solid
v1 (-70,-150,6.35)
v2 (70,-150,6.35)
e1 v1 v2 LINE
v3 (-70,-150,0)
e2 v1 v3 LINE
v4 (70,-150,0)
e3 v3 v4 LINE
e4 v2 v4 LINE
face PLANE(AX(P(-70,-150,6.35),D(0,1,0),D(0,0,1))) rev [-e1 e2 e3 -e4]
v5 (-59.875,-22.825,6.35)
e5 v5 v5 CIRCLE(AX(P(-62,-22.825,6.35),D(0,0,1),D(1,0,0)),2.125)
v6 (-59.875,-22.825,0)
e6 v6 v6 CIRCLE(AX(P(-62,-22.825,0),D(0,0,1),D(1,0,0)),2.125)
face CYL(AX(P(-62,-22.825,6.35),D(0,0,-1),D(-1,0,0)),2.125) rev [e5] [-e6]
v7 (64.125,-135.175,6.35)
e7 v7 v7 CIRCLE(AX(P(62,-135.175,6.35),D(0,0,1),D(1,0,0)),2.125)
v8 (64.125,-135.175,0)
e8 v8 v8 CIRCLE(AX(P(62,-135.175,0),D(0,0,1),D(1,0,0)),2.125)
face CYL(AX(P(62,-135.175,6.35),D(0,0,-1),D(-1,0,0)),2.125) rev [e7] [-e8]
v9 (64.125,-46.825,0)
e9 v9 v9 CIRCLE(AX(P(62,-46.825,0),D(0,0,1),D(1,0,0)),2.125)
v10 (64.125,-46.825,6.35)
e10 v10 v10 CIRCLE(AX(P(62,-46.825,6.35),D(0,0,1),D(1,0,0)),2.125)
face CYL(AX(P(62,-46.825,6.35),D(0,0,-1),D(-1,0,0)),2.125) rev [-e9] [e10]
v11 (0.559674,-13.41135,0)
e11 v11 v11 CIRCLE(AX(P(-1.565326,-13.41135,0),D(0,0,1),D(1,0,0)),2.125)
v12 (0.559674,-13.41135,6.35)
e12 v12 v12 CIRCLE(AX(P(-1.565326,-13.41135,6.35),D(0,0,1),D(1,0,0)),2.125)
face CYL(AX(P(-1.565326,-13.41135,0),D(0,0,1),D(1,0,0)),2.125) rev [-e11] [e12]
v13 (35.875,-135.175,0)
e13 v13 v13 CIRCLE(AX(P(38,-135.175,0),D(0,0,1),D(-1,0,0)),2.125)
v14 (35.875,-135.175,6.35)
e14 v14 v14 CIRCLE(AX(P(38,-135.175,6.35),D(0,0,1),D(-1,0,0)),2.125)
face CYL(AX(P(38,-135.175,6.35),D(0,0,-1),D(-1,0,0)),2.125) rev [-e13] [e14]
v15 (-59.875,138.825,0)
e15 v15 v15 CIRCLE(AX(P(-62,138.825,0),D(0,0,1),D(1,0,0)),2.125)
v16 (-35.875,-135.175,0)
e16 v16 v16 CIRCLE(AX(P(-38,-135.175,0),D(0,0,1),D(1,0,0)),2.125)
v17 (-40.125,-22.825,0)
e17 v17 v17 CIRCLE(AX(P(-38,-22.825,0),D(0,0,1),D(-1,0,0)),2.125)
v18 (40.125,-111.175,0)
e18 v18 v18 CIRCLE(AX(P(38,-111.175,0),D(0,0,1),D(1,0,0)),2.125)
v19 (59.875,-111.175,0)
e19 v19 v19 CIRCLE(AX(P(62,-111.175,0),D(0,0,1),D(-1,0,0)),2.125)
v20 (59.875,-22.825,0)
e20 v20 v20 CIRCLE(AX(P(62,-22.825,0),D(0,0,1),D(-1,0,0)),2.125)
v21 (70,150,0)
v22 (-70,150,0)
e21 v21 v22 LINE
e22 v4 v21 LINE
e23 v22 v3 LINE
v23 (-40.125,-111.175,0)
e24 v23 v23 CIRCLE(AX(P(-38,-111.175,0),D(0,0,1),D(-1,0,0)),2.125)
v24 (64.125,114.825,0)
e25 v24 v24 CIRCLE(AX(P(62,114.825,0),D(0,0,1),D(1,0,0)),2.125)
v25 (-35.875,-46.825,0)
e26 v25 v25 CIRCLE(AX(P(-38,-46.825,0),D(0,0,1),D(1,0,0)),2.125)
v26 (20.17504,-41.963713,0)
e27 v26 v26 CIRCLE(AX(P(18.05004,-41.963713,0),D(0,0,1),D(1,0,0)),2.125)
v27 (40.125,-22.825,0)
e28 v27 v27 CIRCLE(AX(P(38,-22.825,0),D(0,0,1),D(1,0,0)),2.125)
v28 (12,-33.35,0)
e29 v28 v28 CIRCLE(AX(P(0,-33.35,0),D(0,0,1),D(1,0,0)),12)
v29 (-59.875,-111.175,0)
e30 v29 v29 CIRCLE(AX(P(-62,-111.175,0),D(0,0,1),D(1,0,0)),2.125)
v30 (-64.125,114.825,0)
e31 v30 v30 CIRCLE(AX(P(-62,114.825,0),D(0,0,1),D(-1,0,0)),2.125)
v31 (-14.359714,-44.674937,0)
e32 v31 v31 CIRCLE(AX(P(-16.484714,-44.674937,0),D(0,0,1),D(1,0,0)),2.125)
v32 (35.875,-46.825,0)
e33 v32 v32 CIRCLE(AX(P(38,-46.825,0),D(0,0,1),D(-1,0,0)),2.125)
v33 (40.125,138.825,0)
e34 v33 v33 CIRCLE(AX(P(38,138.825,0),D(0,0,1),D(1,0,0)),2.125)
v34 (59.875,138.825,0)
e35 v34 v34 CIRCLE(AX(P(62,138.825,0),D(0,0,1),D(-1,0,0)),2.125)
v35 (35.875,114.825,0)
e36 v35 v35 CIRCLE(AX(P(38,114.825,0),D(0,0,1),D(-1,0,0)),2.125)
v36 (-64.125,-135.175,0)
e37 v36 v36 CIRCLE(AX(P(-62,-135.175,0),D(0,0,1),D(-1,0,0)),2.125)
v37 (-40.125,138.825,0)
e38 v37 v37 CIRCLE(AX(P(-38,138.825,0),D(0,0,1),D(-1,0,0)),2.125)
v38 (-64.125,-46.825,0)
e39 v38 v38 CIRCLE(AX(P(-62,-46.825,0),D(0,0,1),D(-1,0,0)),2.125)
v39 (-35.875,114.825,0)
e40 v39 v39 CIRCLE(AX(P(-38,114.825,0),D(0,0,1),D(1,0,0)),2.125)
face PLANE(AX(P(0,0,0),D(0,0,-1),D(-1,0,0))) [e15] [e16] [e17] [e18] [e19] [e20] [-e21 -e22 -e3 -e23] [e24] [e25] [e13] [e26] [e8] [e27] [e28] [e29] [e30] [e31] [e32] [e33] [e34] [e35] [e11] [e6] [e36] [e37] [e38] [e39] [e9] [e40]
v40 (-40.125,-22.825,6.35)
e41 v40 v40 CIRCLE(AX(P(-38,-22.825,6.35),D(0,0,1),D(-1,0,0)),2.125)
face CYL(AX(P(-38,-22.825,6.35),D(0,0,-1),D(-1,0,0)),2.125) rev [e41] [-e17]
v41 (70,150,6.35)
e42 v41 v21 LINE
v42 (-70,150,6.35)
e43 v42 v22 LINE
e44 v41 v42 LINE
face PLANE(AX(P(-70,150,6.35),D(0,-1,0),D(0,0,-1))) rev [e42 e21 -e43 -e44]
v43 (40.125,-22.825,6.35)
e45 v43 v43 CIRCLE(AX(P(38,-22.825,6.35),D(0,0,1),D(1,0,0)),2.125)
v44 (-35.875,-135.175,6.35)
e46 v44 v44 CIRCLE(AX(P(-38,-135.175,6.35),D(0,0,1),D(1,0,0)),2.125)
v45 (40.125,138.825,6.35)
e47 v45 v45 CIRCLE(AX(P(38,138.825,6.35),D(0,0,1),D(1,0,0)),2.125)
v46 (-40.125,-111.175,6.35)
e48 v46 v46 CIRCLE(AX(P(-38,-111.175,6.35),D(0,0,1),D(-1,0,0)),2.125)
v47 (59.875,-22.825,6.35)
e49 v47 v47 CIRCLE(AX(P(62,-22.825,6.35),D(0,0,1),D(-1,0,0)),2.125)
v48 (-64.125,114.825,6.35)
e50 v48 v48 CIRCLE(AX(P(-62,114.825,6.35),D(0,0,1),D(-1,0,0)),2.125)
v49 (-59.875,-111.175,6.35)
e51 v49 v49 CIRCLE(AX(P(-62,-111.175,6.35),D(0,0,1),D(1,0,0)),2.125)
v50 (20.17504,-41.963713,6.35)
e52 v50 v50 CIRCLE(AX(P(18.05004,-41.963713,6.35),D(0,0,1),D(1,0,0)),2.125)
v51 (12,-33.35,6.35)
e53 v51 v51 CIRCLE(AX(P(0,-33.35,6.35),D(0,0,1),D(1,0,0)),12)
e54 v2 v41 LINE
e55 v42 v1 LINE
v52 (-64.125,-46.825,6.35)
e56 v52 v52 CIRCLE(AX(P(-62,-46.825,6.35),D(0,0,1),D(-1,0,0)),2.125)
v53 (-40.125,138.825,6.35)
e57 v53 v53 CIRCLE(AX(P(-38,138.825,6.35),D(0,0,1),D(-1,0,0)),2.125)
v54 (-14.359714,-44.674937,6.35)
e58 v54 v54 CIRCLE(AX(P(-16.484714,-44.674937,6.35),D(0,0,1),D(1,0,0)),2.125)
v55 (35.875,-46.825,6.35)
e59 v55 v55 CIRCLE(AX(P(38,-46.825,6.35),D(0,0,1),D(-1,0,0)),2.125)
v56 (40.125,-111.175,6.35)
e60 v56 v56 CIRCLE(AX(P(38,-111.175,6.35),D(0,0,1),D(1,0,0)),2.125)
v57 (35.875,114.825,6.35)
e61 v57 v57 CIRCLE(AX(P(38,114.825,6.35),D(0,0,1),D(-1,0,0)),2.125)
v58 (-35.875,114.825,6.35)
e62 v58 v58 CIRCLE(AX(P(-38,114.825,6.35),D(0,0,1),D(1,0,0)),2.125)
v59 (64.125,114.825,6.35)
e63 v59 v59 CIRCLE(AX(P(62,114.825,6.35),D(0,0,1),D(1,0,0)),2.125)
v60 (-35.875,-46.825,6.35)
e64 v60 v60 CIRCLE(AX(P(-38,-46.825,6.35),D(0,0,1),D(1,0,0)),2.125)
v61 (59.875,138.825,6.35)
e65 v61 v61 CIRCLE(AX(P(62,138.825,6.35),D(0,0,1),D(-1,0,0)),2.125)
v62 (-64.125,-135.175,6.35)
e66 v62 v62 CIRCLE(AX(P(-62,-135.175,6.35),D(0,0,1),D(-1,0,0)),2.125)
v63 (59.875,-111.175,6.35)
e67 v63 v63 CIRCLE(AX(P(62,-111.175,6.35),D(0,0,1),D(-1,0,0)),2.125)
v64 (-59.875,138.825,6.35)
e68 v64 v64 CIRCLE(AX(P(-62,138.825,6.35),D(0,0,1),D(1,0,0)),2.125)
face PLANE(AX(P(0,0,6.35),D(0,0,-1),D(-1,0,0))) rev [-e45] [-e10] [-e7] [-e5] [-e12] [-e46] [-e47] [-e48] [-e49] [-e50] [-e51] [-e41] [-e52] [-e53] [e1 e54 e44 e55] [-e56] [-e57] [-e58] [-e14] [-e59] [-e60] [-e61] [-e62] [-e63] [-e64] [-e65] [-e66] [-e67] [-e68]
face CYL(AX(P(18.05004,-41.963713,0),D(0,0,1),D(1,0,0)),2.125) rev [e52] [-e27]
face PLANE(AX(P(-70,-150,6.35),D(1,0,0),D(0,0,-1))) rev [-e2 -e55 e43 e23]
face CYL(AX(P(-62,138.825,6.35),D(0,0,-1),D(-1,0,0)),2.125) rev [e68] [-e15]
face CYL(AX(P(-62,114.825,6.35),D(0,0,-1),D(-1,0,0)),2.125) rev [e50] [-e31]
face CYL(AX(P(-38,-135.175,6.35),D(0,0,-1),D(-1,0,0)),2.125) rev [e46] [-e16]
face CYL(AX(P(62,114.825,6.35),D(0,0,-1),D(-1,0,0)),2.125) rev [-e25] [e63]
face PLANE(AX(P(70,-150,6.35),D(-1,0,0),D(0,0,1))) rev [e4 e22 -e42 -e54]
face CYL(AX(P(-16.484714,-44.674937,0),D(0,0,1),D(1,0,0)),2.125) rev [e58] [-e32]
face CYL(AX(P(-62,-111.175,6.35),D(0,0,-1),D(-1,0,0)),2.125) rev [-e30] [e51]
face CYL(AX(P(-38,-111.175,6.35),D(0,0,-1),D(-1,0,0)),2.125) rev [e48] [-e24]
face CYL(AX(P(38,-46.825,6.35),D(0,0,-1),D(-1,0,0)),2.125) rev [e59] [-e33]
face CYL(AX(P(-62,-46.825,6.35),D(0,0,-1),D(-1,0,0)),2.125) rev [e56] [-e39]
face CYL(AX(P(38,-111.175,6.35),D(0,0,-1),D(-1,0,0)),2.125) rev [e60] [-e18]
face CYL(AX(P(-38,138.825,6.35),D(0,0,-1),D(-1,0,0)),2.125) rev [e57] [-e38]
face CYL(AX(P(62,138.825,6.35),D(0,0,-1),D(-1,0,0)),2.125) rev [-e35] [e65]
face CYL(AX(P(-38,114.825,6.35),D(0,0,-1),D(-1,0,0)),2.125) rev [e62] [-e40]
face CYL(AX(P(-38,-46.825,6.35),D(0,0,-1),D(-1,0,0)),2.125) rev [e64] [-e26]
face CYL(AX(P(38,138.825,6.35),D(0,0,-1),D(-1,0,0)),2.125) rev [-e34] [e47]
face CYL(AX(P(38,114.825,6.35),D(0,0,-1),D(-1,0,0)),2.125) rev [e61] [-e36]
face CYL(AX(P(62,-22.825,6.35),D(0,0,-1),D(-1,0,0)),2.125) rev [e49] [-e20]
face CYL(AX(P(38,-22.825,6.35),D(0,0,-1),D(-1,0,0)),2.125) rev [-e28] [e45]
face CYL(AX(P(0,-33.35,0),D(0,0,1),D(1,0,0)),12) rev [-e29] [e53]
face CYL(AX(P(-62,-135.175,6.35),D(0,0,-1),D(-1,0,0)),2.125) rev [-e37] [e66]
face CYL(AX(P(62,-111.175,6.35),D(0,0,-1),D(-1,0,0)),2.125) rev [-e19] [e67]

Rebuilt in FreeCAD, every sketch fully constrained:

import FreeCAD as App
import Part
import Sketcher

V = App.Vector

doc = App.newDocument("Part")
params = doc.addObject("Spreadsheet::Sheet", "Params")
for row, (alias, value) in enumerate([
    ("sketch1_diameter", "4.25 mm"),
    ("sketch1_width", "140 mm"),
    ("sketch1_height", "300 mm"),
    ("pad1_length", "6.35 mm"),
    ("sketch2_diameter", "24 mm"),
    ("sketch2_diameter2", "4.25 mm"),
], start=1):
    params.set(f"A{row}", alias)
    params.set(f"B{row}", "=" + value)
    params.setAlias(f"B{row}", alias)

body = doc.addObject("PartDesign::Body", "Body")

# Sketch on XY plane
sketch1 = doc.addObject("Sketcher::SketchObject", "Sketch")
body.addObject(sketch1)
sketch1.AttachmentSupport = (doc.XY_Plane, [""])
sketch1.MapMode = "FlatFace"
sketch1.addGeometry([
    Part.LineSegment(V(-70, 150, 0), V(-70, -150, 0)),  # 0
    Part.LineSegment(V(-70, -150, 0), V(70, -150, 0)),  # 1
    Part.LineSegment(V(70, -150, 0), V(70, 150, 0)),  # 2
    Part.LineSegment(V(70, 150, 0), V(-70, 150, 0)),  # 3
    Part.Circle(V(-62, -135.175, 0), V(0, 0, 1), 2.125),  # 4
    Part.Circle(V(-62, -111.175, 0), V(0, 0, 1), 2.125),  # 5
    Part.Circle(V(-38, -135.175, 0), V(0, 0, 1), 2.125),  # 6
    Part.Circle(V(-38, -111.175, 0), V(0, 0, 1), 2.125),  # 7
    Part.Circle(V(-62, -46.825, 0), V(0, 0, 1), 2.125),  # 8
    Part.Circle(V(-38, -46.825, 0), V(0, 0, 1), 2.125),  # 9
    Part.Circle(V(-62, -22.825, 0), V(0, 0, 1), 2.125),  # 10
    Part.Circle(V(-38, -22.825, 0), V(0, 0, 1), 2.125),  # 11
    Part.Circle(V(38, -135.175, 0), V(0, 0, 1), 2.125),  # 12
    Part.Circle(V(38, -111.175, 0), V(0, 0, 1), 2.125),  # 13
    Part.Circle(V(62, -135.175, 0), V(0, 0, 1), 2.125),  # 14
    Part.Circle(V(62, -111.175, 0), V(0, 0, 1), 2.125),  # 15
    Part.Circle(V(38, -46.825, 0), V(0, 0, 1), 2.125),  # 16
    Part.Circle(V(62, -46.825, 0), V(0, 0, 1), 2.125),  # 17
    Part.Circle(V(38, -22.825, 0), V(0, 0, 1), 2.125),  # 18
    Part.Circle(V(62, -22.825, 0), V(0, 0, 1), 2.125),  # 19
    Part.Circle(V(-62, 114.825, 0), V(0, 0, 1), 2.125),  # 20
    Part.Circle(V(-62, 138.825, 0), V(0, 0, 1), 2.125),  # 21
    Part.Circle(V(-38, 114.825, 0), V(0, 0, 1), 2.125),  # 22
    Part.Circle(V(-38, 138.825, 0), V(0, 0, 1), 2.125),  # 23
    Part.Circle(V(38, 114.825, 0), V(0, 0, 1), 2.125),  # 24
    Part.Circle(V(38, 138.825, 0), V(0, 0, 1), 2.125),  # 25
    Part.Circle(V(62, 114.825, 0), V(0, 0, 1), 2.125),  # 26
    Part.Circle(V(62, 138.825, 0), V(0, 0, 1), 2.125),  # 27
], False)
sketch1.addConstraint([
    Sketcher.Constraint("Coincident", 0, 2, 1, 1),
    Sketcher.Constraint("Coincident", 1, 2, 2, 1),
    Sketcher.Constraint("Coincident", 2, 2, 3, 1),
    Sketcher.Constraint("Coincident", 3, 2, 0, 1),
    Sketcher.Constraint("Vertical", 0),
    Sketcher.Constraint("Horizontal", 1),
    Sketcher.Constraint("Vertical", 2),
    Sketcher.Constraint("Horizontal", 3),
    Sketcher.Constraint("Equal", 4, 5),
    Sketcher.Constraint("Equal", 5, 6),
    Sketcher.Constraint("Equal", 6, 7),
    Sketcher.Constraint("Equal", 7, 8),
    Sketcher.Constraint("Equal", 8, 9),
    Sketcher.Constraint("Equal", 9, 10),
    Sketcher.Constraint("Equal", 10, 11),
    Sketcher.Constraint("Equal", 11, 12),
    Sketcher.Constraint("Equal", 12, 13),
    Sketcher.Constraint("Equal", 13, 14),
    Sketcher.Constraint("Equal", 14, 15),
    Sketcher.Constraint("Equal", 15, 16),
    Sketcher.Constraint("Equal", 16, 17),
    Sketcher.Constraint("Equal", 17, 18),
    Sketcher.Constraint("Equal", 18, 19),
    Sketcher.Constraint("Equal", 19, 20),
    Sketcher.Constraint("Equal", 20, 21),
    Sketcher.Constraint("Equal", 21, 22),
    Sketcher.Constraint("Equal", 22, 23),
    Sketcher.Constraint("Equal", 23, 24),
    Sketcher.Constraint("Equal", 24, 25),
    Sketcher.Constraint("Equal", 25, 26),
    Sketcher.Constraint("Equal", 26, 27),
    Sketcher.Constraint("Symmetric", 0, 2, 2, 2, -1, 1),
    Sketcher.Constraint("Symmetric", 6, 3, 12, 3, -2),
    Sketcher.Constraint("Symmetric", 7, 3, 13, 3, -2),
    Sketcher.Constraint("Symmetric", 4, 3, 14, 3, -2),
    Sketcher.Constraint("Symmetric", 5, 3, 15, 3, -2),
    Sketcher.Constraint("Symmetric", 9, 3, 16, 3, -2),
    Sketcher.Constraint("Symmetric", 8, 3, 17, 3, -2),
    Sketcher.Constraint("Symmetric", 11, 3, 18, 3, -2),
    Sketcher.Constraint("Symmetric", 10, 3, 19, 3, -2),
    Sketcher.Constraint("Symmetric", 22, 3, 24, 3, -2),
    Sketcher.Constraint("Symmetric", 23, 3, 25, 3, -2),
    Sketcher.Constraint("Symmetric", 20, 3, 26, 3, -2),
    Sketcher.Constraint("Symmetric", 21, 3, 27, 3, -2),
    Sketcher.Constraint("Horizontal", 4, 3, 6, 3),
    Sketcher.Constraint("Horizontal", 5, 3, 7, 3),
    Sketcher.Constraint("Horizontal", 8, 3, 9, 3),
    Sketcher.Constraint("Horizontal", 10, 3, 11, 3),
    Sketcher.Constraint("Horizontal", 20, 3, 22, 3),
    Sketcher.Constraint("Horizontal", 21, 3, 23, 3),
    Sketcher.Constraint("Vertical", 4, 3, 5, 3),
    Sketcher.Constraint("Vertical", 6, 3, 7, 3),
    Sketcher.Constraint("Vertical", 5, 3, 8, 3),
    Sketcher.Constraint("Vertical", 7, 3, 9, 3),
    Sketcher.Constraint("Vertical", 8, 3, 10, 3),
    Sketcher.Constraint("Vertical", 9, 3, 11, 3),
    Sketcher.Constraint("Vertical", 10, 3, 20, 3),
    Sketcher.Constraint("Vertical", 20, 3, 21, 3),
    Sketcher.Constraint("Vertical", 11, 3, 22, 3),
    Sketcher.Constraint("Vertical", 22, 3, 23, 3),
    Sketcher.Constraint("Diameter", 4, 4.25),
    Sketcher.Constraint("DistanceX", 1, 1, 1, 2, 140.0),
    Sketcher.Constraint("DistanceY", 0, 2, 0, 1, 300.0),
    Sketcher.Constraint("DistanceX", 4, 3, -1, 1, 62.0),
    Sketcher.Constraint("DistanceX", 6, 3, -1, 1, 38.0),
    Sketcher.Constraint("DistanceY", 4, 3, 5, 3, 24.0),
    Sketcher.Constraint("DistanceY", 8, 3, 10, 3, 24.0),
    Sketcher.Constraint("DistanceY", 20, 3, 21, 3, 24.0),
    Sketcher.Constraint("DistanceY", 5, 3, 8, 3, 64.35),
    Sketcher.Constraint("DistanceY", 10, 3, 20, 3, 137.65),
    Sketcher.Constraint("DistanceY", 4, 3, -1, 1, 135.175),
])
sketch1.setExpression("Constraints[60]", "Params.sketch1_diameter")
sketch1.setExpression("Constraints[61]", "Params.sketch1_width")
sketch1.setExpression("Constraints[62]", "Params.sketch1_height")
pad1 = doc.addObject("PartDesign::Pad", "Pad")
body.addObject(pad1)
pad1.Profile = sketch1
pad1.setExpression("Length", "Params.pad1_length")

# Sketch on XY plane
sketch2 = doc.addObject("Sketcher::SketchObject", "Sketch001")
body.addObject(sketch2)
sketch2.AttachmentSupport = (doc.XY_Plane, [""])
sketch2.MapMode = "FlatFace"
sketch2.AttachmentOffset = App.Placement(V(0, 0, 6.35), App.Rotation())
sketch2.addGeometry([
    Part.Circle(V(0, -33.35, 0), V(0, 0, 1), 12),
    Part.Circle(V(-1.565326, -13.41135, 0), V(0, 0, 1), 2.125),
    Part.Circle(V(18.05004, -41.963713, 0), V(0, 0, 1), 2.125),
    Part.Circle(V(-16.484714, -44.674937, 0), V(0, 0, 1), 2.125),
], False)
sketch2.addConstraint([
    Sketcher.Constraint("Equal", 1, 2),
    Sketcher.Constraint("Equal", 2, 3),
    Sketcher.Constraint("PointOnObject", 0, 3, -2),
    Sketcher.Constraint("Diameter", 0, 24.0),
    Sketcher.Constraint("Diameter", 1, 4.25),
    Sketcher.Constraint("DistanceY", 0, 3, -1, 1, 33.35),
    Sketcher.Constraint("DistanceY", 1, 3, -1, 1, 13.41135),
    Sketcher.Constraint("DistanceX", -1, 1, 2, 3, 18.05004),
    Sketcher.Constraint("DistanceX", 3, 3, 1, 3, 14.919388),
    Sketcher.Constraint("DistanceX", 1, 3, -1, 1, 1.565326),
    Sketcher.Constraint("DistanceY", 2, 3, -1, 1, 41.963713),
    Sketcher.Constraint("DistanceY", 3, 3, -1, 1, 44.674937),
])
sketch2.setExpression("Constraints[3]", "Params.sketch2_diameter")
sketch2.setExpression("Constraints[4]", "Params.sketch2_diameter2")
pocket1 = doc.addObject("PartDesign::Pocket", "Pocket")
body.addObject(pocket1)
pocket1.Profile = sketch2
pocket1.Type = "ThroughAll"

doc.recompute()
